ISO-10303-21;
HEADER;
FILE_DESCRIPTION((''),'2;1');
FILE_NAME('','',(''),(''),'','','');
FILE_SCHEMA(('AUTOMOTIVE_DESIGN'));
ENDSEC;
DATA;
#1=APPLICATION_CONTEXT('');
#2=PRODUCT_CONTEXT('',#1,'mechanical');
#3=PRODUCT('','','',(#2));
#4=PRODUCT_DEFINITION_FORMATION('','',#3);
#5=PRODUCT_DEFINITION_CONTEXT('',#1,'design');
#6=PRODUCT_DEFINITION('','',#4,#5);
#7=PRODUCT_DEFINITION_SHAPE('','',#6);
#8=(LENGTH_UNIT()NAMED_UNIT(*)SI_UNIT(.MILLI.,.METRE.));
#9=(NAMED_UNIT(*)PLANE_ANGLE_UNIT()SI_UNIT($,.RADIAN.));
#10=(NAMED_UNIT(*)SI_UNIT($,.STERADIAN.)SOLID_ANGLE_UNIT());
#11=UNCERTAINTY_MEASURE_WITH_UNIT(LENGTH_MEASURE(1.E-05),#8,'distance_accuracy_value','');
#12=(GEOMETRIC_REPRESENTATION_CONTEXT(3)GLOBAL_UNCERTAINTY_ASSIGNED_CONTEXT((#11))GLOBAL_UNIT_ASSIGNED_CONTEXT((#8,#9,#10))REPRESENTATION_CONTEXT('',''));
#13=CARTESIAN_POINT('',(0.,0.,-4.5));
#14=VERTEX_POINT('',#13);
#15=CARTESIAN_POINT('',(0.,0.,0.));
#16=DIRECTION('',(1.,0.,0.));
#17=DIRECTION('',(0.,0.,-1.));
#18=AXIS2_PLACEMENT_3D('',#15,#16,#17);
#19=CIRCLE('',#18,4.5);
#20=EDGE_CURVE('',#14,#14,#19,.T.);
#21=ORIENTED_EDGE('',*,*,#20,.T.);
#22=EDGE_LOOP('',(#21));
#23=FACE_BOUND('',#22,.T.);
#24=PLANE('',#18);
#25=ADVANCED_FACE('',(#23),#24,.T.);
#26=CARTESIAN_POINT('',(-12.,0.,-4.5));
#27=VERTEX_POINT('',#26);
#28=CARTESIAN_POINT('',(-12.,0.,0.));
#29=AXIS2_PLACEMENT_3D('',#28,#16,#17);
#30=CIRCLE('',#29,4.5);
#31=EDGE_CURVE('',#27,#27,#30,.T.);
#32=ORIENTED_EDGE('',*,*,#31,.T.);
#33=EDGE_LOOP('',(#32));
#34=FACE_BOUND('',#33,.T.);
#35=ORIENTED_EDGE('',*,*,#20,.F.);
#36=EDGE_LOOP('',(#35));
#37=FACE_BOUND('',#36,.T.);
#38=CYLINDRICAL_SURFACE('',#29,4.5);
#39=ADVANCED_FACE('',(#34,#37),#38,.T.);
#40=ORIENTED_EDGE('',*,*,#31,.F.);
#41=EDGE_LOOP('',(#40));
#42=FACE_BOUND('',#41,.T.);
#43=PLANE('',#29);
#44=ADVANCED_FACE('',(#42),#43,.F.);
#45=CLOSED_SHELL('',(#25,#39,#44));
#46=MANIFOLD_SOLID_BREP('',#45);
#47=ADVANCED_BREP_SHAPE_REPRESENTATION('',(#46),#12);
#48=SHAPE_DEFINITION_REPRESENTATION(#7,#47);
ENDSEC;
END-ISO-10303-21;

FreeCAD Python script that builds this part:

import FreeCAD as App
import Part
import Sketcher

V = App.Vector

doc = App.newDocument("Part")
params = doc.addObject("Spreadsheet::Sheet", "Params")
for row, (alias, value) in enumerate([
    ("sketch1_diameter", "9 mm"),
    ("pad1_length", "12 mm"),
], start=1):
    params.set(f"A{row}", alias)
    params.set(f"B{row}", "=" + value)
    params.setAlias(f"B{row}", alias)

body = doc.addObject("PartDesign::Body", "Body")

# Sketch on YZ plane
sketch1 = body.newObject("Sketcher::SketchObject", "Sketch")
sketch1.AttachmentSupport = (doc.getObject("YZ_Plane"), [""])
sketch1.MapMode = "FlatFace"
sketch1.addGeometry(Part.Circle(V(0, 0, 0), V(0, 0, 1), 4.5), False)
sketch1.addConstraint(Sketcher.Constraint("Coincident", 0, 3, -1, 1))
sketch1.addConstraint(Sketcher.Constraint("Diameter", 0, 9.0))
sketch1.setExpression("Constraints[1]", "Params.sketch1_diameter")
pad1 = body.newObject("PartDesign::Pad", "Pad")
pad1.Profile = sketch1
pad1.setExpression("Length", "Params.pad1_length")
pad1.Reversed = True

doc.recompute()
